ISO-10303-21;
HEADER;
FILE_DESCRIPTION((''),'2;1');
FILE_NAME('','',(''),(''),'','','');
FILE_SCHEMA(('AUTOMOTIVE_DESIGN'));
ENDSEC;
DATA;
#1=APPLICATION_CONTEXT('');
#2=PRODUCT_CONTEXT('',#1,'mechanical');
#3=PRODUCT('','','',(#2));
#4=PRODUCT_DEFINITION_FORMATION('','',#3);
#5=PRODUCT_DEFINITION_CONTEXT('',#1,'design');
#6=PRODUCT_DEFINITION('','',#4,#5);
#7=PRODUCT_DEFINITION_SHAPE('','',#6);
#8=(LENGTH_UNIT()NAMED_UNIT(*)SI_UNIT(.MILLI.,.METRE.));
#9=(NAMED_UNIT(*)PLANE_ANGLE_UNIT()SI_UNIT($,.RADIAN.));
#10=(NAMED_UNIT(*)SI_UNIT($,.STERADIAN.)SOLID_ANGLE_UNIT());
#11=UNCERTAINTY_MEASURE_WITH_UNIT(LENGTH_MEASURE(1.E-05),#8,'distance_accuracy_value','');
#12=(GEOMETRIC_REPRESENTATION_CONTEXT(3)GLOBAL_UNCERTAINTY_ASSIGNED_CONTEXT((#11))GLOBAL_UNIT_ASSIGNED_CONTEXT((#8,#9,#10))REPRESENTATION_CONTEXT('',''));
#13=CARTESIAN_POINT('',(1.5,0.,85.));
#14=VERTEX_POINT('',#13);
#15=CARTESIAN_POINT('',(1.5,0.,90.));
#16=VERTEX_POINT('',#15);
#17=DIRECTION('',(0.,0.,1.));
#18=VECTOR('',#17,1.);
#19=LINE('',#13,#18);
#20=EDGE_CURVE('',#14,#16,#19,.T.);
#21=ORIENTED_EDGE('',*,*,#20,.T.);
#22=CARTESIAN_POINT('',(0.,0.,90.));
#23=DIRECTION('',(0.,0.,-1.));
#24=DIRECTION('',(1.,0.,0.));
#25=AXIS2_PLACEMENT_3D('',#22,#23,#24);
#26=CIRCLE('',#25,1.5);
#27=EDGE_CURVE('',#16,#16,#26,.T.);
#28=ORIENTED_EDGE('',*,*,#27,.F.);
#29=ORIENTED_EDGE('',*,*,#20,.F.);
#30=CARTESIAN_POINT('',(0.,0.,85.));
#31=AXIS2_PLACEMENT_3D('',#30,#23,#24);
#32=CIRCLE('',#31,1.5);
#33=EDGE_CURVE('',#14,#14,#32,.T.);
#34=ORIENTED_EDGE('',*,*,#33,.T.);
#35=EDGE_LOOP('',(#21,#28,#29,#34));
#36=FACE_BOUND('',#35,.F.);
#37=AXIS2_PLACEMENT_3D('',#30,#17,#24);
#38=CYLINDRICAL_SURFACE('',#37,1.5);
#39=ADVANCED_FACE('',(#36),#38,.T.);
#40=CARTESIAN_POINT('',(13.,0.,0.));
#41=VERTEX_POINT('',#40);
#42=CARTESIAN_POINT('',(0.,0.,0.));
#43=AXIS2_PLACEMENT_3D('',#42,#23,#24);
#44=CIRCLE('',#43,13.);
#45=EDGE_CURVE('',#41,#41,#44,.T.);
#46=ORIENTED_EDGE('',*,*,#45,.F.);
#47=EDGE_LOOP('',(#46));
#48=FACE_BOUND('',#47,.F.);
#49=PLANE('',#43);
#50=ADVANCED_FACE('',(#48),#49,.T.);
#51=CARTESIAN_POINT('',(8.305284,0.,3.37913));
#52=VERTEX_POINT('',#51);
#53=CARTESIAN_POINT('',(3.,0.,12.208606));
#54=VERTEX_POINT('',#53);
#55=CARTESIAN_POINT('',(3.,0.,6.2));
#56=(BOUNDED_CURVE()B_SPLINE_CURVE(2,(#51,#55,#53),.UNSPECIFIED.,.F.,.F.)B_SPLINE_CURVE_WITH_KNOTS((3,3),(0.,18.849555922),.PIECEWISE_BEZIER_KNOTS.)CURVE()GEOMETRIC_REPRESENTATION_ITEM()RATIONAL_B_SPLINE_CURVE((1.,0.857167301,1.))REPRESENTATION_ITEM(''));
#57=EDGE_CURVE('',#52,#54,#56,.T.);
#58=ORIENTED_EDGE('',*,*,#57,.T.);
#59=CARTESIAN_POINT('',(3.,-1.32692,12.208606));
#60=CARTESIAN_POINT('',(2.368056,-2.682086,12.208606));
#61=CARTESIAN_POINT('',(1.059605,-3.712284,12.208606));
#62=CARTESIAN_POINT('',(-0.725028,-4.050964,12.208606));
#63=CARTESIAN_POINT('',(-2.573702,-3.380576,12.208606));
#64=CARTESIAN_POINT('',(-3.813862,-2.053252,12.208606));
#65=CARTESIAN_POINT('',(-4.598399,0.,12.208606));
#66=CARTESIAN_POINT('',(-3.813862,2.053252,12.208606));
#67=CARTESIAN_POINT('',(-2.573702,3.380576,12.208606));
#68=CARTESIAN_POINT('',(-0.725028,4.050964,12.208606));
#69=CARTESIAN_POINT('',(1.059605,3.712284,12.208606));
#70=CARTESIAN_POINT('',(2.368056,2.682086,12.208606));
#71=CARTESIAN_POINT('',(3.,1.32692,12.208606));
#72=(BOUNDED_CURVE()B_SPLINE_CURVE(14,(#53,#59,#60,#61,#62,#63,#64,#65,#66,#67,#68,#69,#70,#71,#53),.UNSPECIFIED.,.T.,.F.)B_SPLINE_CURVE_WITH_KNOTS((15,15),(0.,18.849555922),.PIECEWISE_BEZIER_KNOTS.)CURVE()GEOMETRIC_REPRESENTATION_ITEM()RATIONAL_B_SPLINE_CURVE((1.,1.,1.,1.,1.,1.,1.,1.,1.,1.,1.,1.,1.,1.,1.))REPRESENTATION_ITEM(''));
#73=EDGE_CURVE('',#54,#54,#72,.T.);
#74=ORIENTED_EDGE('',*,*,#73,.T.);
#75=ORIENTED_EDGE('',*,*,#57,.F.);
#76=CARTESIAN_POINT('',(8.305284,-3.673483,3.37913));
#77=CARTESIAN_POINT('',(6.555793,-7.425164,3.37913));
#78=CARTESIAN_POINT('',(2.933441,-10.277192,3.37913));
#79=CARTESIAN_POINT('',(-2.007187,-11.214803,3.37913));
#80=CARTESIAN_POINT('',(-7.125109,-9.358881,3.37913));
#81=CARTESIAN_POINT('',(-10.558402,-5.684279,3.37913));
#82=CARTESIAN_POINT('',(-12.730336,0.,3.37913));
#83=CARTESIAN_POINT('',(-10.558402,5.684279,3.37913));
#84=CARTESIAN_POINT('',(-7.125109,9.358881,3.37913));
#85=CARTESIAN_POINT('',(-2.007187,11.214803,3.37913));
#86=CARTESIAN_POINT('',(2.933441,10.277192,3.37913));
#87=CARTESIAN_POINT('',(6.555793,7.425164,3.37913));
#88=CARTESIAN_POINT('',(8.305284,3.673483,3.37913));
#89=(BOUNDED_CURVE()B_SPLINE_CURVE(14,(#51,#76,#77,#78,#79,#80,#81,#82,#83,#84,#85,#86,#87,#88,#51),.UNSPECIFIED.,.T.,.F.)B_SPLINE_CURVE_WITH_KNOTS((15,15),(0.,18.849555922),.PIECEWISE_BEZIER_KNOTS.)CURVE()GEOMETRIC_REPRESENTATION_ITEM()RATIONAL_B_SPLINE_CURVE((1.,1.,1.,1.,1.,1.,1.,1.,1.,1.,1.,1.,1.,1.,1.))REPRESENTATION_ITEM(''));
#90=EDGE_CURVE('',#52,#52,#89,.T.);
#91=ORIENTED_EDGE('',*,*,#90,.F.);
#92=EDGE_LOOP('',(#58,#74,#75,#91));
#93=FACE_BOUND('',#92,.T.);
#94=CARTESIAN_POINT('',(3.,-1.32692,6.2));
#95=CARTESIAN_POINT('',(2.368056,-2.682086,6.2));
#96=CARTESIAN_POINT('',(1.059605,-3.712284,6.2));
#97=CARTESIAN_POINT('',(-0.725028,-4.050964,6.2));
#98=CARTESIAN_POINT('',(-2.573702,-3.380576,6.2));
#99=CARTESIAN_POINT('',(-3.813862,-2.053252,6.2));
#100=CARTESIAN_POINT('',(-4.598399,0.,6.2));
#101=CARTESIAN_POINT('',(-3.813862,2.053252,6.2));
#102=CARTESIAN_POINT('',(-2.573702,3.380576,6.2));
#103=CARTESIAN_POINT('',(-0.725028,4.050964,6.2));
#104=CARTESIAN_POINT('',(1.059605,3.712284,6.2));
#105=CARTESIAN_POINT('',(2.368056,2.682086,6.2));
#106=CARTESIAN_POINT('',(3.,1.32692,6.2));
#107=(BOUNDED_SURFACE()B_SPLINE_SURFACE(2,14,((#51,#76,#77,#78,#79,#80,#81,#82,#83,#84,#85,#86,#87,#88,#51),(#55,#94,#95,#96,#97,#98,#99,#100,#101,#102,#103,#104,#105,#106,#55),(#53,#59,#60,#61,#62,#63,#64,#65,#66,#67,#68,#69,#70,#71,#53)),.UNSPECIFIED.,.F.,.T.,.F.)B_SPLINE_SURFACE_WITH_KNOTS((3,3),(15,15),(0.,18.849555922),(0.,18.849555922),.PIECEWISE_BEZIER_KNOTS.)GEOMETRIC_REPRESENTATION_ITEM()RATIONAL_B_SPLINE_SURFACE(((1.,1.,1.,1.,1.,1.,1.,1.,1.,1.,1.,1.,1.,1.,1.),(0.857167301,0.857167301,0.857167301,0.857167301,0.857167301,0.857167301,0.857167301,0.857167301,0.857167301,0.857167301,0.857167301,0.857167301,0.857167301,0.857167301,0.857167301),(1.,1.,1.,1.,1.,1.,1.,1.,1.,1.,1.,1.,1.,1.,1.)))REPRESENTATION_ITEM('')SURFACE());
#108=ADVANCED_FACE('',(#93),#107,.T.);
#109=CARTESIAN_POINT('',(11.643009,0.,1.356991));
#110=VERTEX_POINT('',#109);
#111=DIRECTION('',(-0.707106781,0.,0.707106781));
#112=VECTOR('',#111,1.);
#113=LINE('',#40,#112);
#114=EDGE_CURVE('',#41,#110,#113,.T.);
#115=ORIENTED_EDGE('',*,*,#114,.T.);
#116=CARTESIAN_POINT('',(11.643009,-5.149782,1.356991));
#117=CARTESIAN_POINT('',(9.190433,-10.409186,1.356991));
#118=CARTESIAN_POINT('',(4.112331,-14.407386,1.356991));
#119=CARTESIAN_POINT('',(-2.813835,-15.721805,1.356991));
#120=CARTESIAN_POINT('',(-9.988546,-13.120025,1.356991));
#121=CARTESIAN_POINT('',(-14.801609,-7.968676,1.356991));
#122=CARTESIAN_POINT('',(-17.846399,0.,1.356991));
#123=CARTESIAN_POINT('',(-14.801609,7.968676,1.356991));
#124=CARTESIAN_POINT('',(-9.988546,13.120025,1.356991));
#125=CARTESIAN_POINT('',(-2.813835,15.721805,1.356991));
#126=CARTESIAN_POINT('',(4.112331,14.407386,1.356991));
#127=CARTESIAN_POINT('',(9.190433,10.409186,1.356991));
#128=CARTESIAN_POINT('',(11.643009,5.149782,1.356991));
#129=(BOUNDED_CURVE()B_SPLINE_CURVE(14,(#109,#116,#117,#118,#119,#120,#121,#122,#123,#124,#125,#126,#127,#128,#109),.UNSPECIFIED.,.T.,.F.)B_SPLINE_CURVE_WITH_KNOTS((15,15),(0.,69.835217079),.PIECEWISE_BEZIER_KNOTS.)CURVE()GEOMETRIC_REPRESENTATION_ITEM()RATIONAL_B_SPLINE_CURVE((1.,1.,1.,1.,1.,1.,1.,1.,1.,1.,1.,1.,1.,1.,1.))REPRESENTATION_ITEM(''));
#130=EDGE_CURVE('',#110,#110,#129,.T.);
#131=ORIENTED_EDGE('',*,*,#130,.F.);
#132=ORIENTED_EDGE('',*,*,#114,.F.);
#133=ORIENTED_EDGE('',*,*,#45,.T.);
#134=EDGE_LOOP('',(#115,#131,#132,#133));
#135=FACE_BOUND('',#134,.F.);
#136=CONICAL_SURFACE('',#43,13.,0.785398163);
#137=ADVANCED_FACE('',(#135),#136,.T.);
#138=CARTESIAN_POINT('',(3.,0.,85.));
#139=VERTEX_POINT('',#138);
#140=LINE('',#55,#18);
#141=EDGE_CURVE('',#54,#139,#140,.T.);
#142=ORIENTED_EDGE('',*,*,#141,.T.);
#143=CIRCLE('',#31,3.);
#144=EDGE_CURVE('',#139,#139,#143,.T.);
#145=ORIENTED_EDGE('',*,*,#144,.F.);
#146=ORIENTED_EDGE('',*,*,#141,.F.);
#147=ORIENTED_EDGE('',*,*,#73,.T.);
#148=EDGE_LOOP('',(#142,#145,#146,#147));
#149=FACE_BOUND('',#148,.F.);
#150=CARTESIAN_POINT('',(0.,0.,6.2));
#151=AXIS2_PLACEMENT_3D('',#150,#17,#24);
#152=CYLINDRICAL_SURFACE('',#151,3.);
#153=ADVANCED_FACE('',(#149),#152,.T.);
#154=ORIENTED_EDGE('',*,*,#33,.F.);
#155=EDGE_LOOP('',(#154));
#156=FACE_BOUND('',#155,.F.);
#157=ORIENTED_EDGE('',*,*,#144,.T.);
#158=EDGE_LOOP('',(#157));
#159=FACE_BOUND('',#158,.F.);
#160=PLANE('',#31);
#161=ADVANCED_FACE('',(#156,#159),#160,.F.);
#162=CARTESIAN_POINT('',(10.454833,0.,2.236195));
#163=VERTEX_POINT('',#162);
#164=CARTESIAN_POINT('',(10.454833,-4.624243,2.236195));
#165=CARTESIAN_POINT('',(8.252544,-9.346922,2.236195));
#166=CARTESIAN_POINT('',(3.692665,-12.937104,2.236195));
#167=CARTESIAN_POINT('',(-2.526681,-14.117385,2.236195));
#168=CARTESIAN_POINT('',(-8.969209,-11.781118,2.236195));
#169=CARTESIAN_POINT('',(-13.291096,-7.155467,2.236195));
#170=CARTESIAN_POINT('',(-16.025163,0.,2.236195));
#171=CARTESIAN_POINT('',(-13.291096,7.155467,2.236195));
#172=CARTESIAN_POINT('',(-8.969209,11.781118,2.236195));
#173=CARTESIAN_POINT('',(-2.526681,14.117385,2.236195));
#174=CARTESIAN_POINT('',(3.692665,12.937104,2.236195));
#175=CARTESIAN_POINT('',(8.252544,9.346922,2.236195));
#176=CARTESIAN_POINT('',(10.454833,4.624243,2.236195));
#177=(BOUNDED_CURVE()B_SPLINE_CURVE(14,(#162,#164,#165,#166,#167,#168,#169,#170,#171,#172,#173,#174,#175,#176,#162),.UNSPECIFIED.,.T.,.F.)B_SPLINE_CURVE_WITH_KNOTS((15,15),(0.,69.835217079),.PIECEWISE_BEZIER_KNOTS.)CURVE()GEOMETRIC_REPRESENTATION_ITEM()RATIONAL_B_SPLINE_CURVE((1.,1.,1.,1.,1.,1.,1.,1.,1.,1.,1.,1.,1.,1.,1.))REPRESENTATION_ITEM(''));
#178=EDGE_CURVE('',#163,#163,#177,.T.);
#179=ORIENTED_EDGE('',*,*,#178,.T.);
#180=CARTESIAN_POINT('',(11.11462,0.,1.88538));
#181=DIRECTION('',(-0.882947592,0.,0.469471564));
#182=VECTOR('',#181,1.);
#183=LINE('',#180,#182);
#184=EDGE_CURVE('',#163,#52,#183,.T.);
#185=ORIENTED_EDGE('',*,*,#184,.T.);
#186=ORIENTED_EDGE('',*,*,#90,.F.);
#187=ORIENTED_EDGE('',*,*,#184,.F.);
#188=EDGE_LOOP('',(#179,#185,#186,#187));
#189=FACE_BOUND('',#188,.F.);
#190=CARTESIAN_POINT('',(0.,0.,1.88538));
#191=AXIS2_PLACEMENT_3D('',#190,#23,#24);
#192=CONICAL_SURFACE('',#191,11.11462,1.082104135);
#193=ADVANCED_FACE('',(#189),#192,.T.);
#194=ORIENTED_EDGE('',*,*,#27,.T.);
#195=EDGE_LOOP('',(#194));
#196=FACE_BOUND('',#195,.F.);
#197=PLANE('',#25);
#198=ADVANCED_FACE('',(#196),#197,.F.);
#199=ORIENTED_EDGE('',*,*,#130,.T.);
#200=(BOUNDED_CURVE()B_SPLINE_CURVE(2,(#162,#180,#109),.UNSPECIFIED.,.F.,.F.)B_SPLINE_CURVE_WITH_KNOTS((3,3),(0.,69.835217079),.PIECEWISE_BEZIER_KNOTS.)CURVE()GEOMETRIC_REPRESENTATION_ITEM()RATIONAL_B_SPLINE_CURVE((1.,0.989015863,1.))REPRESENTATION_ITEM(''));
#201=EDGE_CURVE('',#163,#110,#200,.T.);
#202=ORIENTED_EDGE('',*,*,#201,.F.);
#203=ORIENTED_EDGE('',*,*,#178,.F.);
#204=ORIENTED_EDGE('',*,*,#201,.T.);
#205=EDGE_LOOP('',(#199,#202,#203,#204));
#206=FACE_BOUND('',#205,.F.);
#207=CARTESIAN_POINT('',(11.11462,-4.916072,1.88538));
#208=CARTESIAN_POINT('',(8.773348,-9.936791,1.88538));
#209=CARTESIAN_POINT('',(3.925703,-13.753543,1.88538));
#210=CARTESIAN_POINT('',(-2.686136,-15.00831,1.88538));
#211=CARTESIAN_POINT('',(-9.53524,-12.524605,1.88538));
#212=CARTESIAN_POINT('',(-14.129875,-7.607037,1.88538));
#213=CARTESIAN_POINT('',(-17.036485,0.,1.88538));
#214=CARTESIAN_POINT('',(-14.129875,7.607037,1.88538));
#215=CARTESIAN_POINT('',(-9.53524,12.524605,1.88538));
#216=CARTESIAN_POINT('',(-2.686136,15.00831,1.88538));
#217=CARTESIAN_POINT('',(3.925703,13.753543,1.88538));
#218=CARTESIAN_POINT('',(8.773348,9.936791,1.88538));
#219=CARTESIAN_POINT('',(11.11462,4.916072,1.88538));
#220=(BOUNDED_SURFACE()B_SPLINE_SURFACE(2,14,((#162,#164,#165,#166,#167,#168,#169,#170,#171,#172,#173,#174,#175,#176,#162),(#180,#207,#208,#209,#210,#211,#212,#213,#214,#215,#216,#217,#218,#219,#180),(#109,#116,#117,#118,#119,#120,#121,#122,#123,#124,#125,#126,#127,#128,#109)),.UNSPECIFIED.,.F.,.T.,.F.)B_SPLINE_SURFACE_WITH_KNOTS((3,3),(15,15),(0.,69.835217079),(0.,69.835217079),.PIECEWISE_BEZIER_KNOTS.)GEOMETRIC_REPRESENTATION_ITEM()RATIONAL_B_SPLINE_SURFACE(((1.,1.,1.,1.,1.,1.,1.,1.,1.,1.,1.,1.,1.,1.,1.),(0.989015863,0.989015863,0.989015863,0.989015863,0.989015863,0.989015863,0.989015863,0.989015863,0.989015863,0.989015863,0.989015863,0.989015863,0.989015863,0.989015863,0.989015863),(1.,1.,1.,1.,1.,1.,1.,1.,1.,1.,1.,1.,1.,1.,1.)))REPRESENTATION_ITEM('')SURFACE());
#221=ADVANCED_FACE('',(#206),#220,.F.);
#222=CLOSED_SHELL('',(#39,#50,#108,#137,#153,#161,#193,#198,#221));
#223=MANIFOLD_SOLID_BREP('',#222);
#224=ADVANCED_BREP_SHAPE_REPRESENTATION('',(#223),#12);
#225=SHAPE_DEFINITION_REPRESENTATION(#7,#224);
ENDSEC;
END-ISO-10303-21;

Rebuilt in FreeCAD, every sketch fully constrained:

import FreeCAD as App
import Part
import Sketcher
from FreeCAD import Vector
Q = App.Units.Quantity


def edges_at(feature, points):
    """Names of the edges that pass closest to the given points."""
    edges = feature.Shape.Edges
    near = lambda p: min(range(len(edges)), key=lambda i: edges[i].distToShape(Part.Vertex(*p))[0])
    return sorted({f"Edge{near(p) + 1}" for p in points})


def add_polygon(sketch, points):
    """Adds a closed chain of lines whose ends are joined by coincident constraints."""
    first, n = sketch.GeometryCount, len(points)
    for a, b in zip(points, points[1:] + points[:1]):
        sketch.addGeometry(Part.LineSegment(App.Vector(*a, 0), App.Vector(*b, 0)), False)
    for i in range(n):
        sketch.addConstraint(Sketcher.Constraint("Coincident", first + i, 2, first + (i + 1) % n, 1))

doc = App.newDocument("Part")
params = doc.addObject("Spreadsheet::Sheet", "Params")
for row, (alias, value) in enumerate([
    ("sketch1_width", "13 mm"),
    ("sketch1_height", "90 mm"),
    ("sketch1_height2", "5 mm"),
    ("sketch1_width2", "1.5 mm"),
    ("sketch1_height3", "78.8 mm"),
    ("revolution_angle", "360 deg"),
    ("fillet_radius", "10 mm"),
    ("fillet2_radius", "5 mm"),
], start=1):
    params.set(f"A{row}", alias)
    params.set(f"B{row}", "=" + value)
    params.setAlias(f"B{row}", alias)

body = doc.addObject("PartDesign::Body", "Body")

sketch1 = body.newObject("Sketcher::SketchObject", "Sketch")
sketch1.AttachmentSupport = (doc.getObject("XZ_Plane"), [""])
sketch1.MapMode = "FlatFace"
add_polygon(sketch1, [(0, 90), (0, 0), (13, 0), (11.1, 1.9), (3, 6.2), (3, 85), (1.5, 85), (1.5, 90)])
sketch1.addConstraint(Sketcher.Constraint("Vertical", 0))
sketch1.addConstraint(Sketcher.Constraint("Horizontal", 1))
sketch1.addConstraint(Sketcher.Constraint("Vertical", 4))
sketch1.addConstraint(Sketcher.Constraint("Horizontal", 5))
sketch1.addConstraint(Sketcher.Constraint("Vertical", 6))
sketch1.addConstraint(Sketcher.Constraint("Horizontal", 7))
sketch1.addConstraint(Sketcher.Constraint("Coincident", 0, 2, -1, 1))
sketch1.addConstraint(Sketcher.Constraint("Equal", 5, 7))
sketch1.addConstraint(Sketcher.Constraint("DistanceX", 1, 1, 1, 2, Q("13 mm")))
sketch1.addConstraint(Sketcher.Constraint("DistanceY", 0, 2, 0, 1, Q("90 mm")))
sketch1.addConstraint(Sketcher.Constraint("DistanceY", 6, 1, 6, 2, Q("5 mm")))
sketch1.addConstraint(Sketcher.Constraint("Angle", 2, Q("135 deg")))
sketch1.addConstraint(Sketcher.Constraint("Angle", 3, Q("152 deg")))
sketch1.addConstraint(Sketcher.Constraint("DistanceX", 5, 2, 5, 1, Q("1.5 mm")))
sketch1.addConstraint(Sketcher.Constraint("DistanceY", 4, 1, 4, 2, Q("78.8 mm")))
sketch1.setExpression("Constraints[16]", "Params.sketch1_width")
sketch1.setExpression("Constraints[17]", "Params.sketch1_height")
sketch1.setExpression("Constraints[18]", "Params.sketch1_height2")
sketch1.setExpression("Constraints[21]", "Params.sketch1_width2")
sketch1.setExpression("Constraints[22]", "Params.sketch1_height3")
revolution = body.newObject("PartDesign::Revolution", "Revolution")
revolution.Profile = sketch1
revolution.ReferenceAxis = (sketch1, ["V_Axis"])
revolution.setExpression("Angle", "Params.revolution_angle")
doc.recompute()

fillet = body.newObject("PartDesign::Fillet", "Fillet")
fillet.Base = (revolution, edges_at(revolution, [(-3, 0, 6.2)]))
fillet.setExpression("Radius", "Params.fillet_radius")
doc.recompute()

fillet2 = body.newObject("PartDesign::Fillet", "Fillet001")
fillet2.Base = (fillet, edges_at(fillet, [(-11.115, 0, 1.885)]))
fillet2.setExpression("Radius", "Params.fillet2_radius")

doc.recompute()
